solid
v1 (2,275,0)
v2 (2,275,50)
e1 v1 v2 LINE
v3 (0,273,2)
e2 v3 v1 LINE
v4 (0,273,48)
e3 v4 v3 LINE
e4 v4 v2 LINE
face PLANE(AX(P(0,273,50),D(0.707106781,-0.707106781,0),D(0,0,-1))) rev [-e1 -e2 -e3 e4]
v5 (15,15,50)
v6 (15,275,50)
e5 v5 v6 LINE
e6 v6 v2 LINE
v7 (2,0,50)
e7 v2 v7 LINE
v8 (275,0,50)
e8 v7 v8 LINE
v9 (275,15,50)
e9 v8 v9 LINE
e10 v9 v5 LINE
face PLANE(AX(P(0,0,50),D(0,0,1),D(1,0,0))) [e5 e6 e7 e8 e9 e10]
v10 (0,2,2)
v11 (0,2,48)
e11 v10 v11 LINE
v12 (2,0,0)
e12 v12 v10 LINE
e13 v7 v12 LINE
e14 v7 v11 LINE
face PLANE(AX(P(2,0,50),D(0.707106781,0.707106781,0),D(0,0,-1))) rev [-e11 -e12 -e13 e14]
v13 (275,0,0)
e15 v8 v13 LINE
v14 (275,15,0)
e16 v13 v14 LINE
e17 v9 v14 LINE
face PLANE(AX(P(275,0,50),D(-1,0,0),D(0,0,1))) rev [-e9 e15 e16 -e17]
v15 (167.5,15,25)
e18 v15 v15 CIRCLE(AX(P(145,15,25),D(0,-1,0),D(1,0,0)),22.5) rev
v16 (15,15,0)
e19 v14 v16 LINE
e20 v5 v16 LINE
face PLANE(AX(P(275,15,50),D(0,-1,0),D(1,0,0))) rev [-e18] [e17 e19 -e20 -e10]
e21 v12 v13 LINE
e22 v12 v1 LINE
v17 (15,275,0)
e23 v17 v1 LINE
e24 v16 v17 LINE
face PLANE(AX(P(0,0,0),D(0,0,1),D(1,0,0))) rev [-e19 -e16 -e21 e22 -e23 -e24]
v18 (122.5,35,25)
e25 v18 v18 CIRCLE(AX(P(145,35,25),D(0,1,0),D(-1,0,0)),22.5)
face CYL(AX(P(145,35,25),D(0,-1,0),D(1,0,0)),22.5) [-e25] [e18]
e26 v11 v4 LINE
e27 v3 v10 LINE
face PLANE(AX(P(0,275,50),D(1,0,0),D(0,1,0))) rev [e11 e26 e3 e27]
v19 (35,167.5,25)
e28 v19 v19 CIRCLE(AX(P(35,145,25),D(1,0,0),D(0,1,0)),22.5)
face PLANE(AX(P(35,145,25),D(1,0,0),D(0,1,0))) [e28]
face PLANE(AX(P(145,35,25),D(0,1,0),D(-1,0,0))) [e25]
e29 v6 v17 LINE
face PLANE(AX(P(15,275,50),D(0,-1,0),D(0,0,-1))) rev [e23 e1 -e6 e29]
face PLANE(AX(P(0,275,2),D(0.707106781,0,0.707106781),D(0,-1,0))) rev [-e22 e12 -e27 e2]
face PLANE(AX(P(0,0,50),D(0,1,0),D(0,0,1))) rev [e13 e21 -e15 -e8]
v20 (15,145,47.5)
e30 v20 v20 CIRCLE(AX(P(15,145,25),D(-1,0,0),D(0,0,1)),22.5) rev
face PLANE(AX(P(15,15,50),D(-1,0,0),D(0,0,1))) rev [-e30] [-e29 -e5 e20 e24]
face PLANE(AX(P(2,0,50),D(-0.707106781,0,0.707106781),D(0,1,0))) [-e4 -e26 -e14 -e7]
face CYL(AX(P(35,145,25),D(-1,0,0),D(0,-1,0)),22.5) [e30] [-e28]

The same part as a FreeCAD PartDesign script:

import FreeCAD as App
import Part
import Sketcher
from FreeCAD import Vector
Q = App.Units.Quantity


def edges_at(feature, points):
    """Names of the edges that pass closest to the given points."""
    edges = feature.Shape.Edges
    near = lambda p: min(range(len(edges)), key=lambda i: edges[i].distToShape(Part.Vertex(*p))[0])
    return sorted({f"Edge{near(p) + 1}" for p in points})

doc = App.newDocument("Part")
body = doc.addObject("PartDesign::Body", "Body")

# Sketch on XY plane
sketch1 = body.newObject("Sketcher::SketchObject", "Sketch")
sketch1.AttachmentSupport = (doc.getObject("XY_Plane"), [""])
sketch1.MapMode = "FlatFace"
sketch1.addGeometry([
    Part.LineSegment(Vector(0, 275, 0), Vector(0, 0, 0)),  # 0
    Part.LineSegment(Vector(0, 0, 0), Vector(275, 0, 0)),  # 1
    Part.LineSegment(Vector(275, 0, 0), Vector(275, 15, 0)),  # 2
    Part.LineSegment(Vector(275, 15, 0), Vector(15, 15, 0)),  # 3
    Part.LineSegment(Vector(15, 15, 0), Vector(15, 275, 0)),  # 4
    Part.LineSegment(Vector(15, 275, 0), Vector(0, 275, 0)),  # 5
], False)
sketch1.addConstraint([
    Sketcher.Constraint("Coincident", 0, 2, 1, 1),
    Sketcher.Constraint("Coincident", 1, 2, 2, 1),
    Sketcher.Constraint("Coincident", 2, 2, 3, 1),
    Sketcher.Constraint("Coincident", 3, 2, 4, 1),
    Sketcher.Constraint("Coincident", 4, 2, 5, 1),
    Sketcher.Constraint("Coincident", 5, 2, 0, 1),
    Sketcher.Constraint("Vertical", 0),
    Sketcher.Constraint("Horizontal", 1),
    Sketcher.Constraint("Vertical", 2),
    Sketcher.Constraint("Horizontal", 3),
    Sketcher.Constraint("Vertical", 4),
    Sketcher.Constraint("Horizontal", 5),
    Sketcher.Constraint("Coincident", 0, 2, -1, 1),
    Sketcher.Constraint("Equal", 1, 0),
    Sketcher.Constraint("Equal", 5, 2),
    Sketcher.Constraint("DistanceX", 1, 1, 1, 2, Q("275 mm")),
    Sketcher.Constraint("DistanceX", 3, 2, 3, 1, Q("260 mm")),
])
pad1 = body.newObject("PartDesign::Pad", "Pad")
pad1.Profile = sketch1
pad1.Length = 50

# Sketch on XZ plane
sketch2 = body.newObject("Sketcher::SketchObject", "Sketch001")
sketch2.AttachmentSupport = (doc.getObject("XZ_Plane"), [""])
sketch2.MapMode = "FlatFace"
sketch2.AttachmentOffset = App.Placement(Vector(0, 0, -15), App.Rotation())
sketch2.addGeometry(Part.Circle(Vector(145, 25, 0), Vector(0, 0, 1), 22), False)
sketch2.addConstraint([
    Sketcher.Constraint("Diameter", 0, Q("45 mm")),
    Sketcher.Constraint("DistanceX", -1, 1, 0, 3, Q("145 mm")),
    Sketcher.Constraint("DistanceY", -1, 1, 0, 3, Q("25 mm")),
])
pad2 = body.newObject("PartDesign::Pad", "Pad001")
pad2.Profile = sketch2
pad2.Length = 20
pad2.Reversed = True

# Sketch on YZ plane
sketch3 = body.newObject("Sketcher::SketchObject", "Sketch002")
sketch3.AttachmentSupport = (doc.getObject("YZ_Plane"), [""])
sketch3.MapMode = "FlatFace"
sketch3.AttachmentOffset = App.Placement(Vector(0, 0, 15), App.Rotation())
sketch3.addGeometry(Part.Circle(Vector(145, 25, 0), Vector(0, 0, 1), 22), False)
sketch3.addConstraint([
    Sketcher.Constraint("Diameter", 0, Q("45 mm")),
    Sketcher.Constraint("DistanceX", -1, 1, 0, 3, Q("145 mm")),
    Sketcher.Constraint("DistanceY", -1, 1, 0, 3, Q("25 mm")),
])
pad3 = body.newObject("PartDesign::Pad", "Pad002")
pad3.Profile = sketch3
pad3.Length = 20
doc.recompute()

chamfer = body.newObject("PartDesign::Chamfer", "Chamfer")
chamfer.Base = (pad3, edges_at(pad3, [
    (0, 0, 25),
    (0, 275, 25),
    (0, 137.5, 0),
    (0, 137.5, 50),
]))
chamfer.Size = 2

doc.recompute()
